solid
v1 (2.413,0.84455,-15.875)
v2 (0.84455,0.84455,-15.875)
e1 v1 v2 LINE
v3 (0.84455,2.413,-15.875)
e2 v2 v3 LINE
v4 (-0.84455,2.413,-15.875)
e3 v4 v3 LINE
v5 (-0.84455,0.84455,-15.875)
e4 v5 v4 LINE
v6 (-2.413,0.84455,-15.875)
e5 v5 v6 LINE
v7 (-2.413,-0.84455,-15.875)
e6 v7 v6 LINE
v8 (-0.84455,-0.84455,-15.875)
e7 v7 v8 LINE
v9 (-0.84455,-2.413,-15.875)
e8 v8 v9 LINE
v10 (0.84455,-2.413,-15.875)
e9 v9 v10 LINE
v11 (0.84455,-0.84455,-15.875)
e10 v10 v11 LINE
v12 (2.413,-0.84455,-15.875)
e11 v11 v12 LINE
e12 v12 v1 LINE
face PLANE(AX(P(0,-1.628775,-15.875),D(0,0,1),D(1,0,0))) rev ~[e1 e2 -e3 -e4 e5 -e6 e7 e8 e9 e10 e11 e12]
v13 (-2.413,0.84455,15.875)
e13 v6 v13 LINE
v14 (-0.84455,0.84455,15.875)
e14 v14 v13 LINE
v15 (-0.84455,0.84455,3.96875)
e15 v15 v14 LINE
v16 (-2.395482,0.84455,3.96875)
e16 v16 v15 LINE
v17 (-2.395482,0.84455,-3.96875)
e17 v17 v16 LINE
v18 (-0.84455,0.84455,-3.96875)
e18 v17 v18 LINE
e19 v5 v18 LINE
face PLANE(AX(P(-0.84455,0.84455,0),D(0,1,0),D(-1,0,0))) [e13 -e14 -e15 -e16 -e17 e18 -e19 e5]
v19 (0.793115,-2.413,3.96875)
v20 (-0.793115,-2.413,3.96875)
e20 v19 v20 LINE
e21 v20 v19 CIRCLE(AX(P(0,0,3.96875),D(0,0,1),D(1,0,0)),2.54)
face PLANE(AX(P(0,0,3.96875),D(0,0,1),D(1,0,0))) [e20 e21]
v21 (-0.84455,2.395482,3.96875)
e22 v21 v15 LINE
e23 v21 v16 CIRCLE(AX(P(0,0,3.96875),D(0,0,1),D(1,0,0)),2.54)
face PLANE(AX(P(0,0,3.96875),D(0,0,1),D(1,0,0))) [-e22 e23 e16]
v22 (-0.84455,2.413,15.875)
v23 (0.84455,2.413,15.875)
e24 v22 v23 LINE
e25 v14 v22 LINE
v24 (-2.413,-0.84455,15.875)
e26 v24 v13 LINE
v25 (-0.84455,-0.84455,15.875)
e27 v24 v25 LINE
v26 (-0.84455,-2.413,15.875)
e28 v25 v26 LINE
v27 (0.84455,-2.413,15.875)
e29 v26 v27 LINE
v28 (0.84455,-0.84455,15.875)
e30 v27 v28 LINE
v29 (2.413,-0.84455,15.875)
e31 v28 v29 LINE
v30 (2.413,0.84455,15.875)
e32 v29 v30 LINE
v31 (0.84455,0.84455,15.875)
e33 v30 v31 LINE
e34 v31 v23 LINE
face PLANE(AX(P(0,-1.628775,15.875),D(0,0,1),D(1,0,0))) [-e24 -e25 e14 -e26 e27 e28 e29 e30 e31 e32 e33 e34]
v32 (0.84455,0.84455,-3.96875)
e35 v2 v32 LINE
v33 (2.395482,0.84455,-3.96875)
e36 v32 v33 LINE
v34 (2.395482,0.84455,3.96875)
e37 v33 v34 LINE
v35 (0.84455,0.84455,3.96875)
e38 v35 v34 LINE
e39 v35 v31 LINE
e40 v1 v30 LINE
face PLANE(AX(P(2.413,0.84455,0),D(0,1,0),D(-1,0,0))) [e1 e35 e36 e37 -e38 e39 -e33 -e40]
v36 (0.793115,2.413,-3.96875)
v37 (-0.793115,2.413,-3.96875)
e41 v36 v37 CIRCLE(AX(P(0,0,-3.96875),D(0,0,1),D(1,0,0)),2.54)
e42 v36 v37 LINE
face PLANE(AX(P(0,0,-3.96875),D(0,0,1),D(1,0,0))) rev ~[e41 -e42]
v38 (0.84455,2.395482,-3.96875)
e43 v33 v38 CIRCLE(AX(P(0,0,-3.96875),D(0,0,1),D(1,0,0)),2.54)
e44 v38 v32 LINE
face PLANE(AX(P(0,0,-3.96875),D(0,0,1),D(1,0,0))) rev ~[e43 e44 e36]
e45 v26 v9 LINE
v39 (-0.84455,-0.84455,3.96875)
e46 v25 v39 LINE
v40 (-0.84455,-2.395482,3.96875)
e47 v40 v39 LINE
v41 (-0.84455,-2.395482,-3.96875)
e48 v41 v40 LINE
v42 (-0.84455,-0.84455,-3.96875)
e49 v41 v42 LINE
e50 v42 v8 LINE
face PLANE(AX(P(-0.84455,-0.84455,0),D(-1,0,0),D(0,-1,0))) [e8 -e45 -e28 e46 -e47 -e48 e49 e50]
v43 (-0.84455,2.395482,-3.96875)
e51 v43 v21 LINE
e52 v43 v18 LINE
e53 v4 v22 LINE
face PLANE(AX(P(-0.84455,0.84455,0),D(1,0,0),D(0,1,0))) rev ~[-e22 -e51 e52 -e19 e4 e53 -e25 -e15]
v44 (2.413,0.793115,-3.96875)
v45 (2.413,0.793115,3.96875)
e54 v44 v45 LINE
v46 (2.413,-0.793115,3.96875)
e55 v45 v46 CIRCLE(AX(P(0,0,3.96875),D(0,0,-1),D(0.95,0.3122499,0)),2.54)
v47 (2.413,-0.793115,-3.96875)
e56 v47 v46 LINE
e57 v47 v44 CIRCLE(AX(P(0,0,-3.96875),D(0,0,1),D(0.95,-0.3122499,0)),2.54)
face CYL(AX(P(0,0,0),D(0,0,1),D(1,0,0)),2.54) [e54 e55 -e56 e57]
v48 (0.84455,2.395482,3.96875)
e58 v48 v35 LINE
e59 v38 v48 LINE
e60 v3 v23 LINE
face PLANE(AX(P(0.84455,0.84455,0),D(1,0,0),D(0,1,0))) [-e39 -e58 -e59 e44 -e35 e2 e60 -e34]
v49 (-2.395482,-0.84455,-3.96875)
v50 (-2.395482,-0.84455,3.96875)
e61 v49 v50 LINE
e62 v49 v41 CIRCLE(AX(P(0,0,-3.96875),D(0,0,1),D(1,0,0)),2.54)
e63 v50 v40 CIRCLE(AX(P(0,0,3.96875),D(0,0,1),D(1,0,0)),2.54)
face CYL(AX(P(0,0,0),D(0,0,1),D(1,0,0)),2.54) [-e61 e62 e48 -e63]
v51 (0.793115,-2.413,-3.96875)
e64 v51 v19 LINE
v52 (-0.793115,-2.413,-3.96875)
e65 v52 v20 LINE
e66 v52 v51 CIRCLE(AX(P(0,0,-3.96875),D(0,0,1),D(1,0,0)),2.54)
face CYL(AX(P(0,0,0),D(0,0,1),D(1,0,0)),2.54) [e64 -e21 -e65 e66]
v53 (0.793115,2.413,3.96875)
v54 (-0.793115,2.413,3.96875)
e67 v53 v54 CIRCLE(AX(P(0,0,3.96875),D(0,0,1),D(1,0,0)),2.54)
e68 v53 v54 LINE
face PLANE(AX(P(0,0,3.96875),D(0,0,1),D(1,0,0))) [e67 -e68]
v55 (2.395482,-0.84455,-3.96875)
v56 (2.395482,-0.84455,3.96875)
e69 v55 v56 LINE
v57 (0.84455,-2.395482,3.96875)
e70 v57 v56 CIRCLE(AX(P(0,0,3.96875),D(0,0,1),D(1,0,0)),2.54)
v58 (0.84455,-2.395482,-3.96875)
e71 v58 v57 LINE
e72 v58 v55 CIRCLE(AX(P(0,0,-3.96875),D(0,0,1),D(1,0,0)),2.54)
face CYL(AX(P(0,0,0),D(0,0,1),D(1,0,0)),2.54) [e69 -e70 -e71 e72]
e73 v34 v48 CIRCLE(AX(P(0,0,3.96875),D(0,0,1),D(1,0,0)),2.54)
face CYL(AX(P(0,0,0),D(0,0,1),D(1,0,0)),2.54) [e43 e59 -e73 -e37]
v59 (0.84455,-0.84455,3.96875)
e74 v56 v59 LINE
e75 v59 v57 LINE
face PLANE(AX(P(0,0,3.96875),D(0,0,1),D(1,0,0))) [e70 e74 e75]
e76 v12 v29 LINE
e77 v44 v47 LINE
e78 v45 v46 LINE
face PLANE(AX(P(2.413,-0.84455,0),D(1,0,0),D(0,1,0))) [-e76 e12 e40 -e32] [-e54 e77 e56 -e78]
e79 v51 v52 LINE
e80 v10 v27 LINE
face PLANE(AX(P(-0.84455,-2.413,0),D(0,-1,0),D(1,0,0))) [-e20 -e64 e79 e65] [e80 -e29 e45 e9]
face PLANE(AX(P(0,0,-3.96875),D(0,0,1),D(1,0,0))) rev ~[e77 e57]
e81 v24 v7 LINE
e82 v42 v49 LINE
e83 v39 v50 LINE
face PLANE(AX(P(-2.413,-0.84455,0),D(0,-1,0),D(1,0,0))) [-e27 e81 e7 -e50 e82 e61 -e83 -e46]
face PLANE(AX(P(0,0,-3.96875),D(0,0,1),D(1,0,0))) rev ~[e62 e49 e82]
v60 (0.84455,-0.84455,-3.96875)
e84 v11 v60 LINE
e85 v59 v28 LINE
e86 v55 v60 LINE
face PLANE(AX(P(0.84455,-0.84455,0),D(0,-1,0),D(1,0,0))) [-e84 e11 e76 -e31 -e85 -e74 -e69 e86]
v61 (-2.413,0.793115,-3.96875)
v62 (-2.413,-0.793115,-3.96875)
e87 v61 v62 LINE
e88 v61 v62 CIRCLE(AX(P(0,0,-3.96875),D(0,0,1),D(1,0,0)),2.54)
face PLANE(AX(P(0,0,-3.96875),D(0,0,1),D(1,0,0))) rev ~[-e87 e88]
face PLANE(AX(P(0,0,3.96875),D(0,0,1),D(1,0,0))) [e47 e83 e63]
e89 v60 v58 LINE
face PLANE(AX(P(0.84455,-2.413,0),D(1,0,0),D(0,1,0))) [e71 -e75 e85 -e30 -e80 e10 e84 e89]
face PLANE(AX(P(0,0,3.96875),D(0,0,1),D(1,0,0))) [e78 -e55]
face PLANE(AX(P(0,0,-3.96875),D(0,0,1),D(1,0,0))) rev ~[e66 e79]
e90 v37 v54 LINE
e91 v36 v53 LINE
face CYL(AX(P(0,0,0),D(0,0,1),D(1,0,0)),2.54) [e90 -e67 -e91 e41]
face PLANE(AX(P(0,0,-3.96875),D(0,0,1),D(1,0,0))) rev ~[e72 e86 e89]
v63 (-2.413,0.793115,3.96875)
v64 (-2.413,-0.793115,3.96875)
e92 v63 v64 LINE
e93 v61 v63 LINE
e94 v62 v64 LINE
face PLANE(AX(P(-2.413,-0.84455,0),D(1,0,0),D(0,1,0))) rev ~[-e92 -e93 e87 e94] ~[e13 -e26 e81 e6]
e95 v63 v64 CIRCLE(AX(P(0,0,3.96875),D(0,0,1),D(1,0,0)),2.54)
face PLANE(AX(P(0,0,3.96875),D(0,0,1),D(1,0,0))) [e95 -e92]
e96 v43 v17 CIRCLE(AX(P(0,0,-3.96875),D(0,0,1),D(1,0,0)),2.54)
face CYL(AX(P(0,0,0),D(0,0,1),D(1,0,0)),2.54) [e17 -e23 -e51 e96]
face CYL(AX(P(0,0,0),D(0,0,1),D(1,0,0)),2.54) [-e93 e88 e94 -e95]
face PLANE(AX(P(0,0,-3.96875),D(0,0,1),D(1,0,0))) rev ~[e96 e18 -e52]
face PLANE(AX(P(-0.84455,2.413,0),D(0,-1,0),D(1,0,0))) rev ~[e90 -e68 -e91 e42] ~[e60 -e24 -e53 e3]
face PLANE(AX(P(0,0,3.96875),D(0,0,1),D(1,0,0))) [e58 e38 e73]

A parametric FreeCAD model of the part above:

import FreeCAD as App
import Part
import Sketcher
from FreeCAD import Vector
Q = App.Units.Quantity


def add_polygon(sketch, points):
    """Adds a closed chain of lines whose ends are joined by coincident constraints."""
    first, n = sketch.GeometryCount, len(points)
    for a, b in zip(points, points[1:] + points[:1]):
        sketch.addGeometry(Part.LineSegment(App.Vector(*a, 0), App.Vector(*b, 0)), False)
    for i in range(n):
        sketch.addConstraint(Sketcher.Constraint("Coincident", first + i, 2, first + (i + 1) % n, 1))

doc = App.newDocument("Part")
body = doc.addObject("PartDesign::Body", "Body")

# Sketch on XY plane
sketch1 = body.newObject("Sketcher::SketchObject", "Sketch")
sketch1.AttachmentSupport = (doc.getObject("XY_Plane"), [""])
sketch1.MapMode = "FlatFace"
add_polygon(sketch1, [(-0.8, -2.4), (0.8, -2.4), (0.8, -0.8), (2.4, -0.8), (2.4, 0.8), (0.8, 0.8), (0.8, 2.4), (-0.8, 2.4), (-0.8, 0.8), (-2.4, 0.8), (-2.4, -0.8), (-0.8, -0.8)])  # lines 0-11
sketch1.addConstraint([
    Sketcher.Constraint("Horizontal", 0),
    Sketcher.Constraint("Vertical", 1),
    Sketcher.Constraint("Horizontal", 2),
    Sketcher.Constraint("Vertical", 3),
    Sketcher.Constraint("Horizontal", 4),
    Sketcher.Constraint("Vertical", 5),
    Sketcher.Constraint("Horizontal", 6),
    Sketcher.Constraint("Vertical", 7),
    Sketcher.Constraint("Horizontal", 8),
    Sketcher.Constraint("Vertical", 9),
    Sketcher.Constraint("Horizontal", 10),
    Sketcher.Constraint("Vertical", 11),
    Sketcher.Constraint("Symmetric", 0, 2, 6, 2, -1, 1),
    Sketcher.Constraint("Symmetric", 2, 2, 8, 2, -1, 1),
    Sketcher.Constraint("Symmetric", 4, 2, 10, 2, -1, 1),
    Sketcher.Constraint("Symmetric", 4, 2, 7, 2, -2),
    Sketcher.Constraint("Equal", 10, 1),
    Sketcher.Constraint("Equal", 6, 3),
    Sketcher.Constraint("DistanceY", 0, 2, 5, 2, Q("0.19 in")),
    Sketcher.Constraint("DistanceX", 0, 1, 0, 2, Q("0.0665 in")),
])
pad1 = body.newObject("PartDesign::Pad", "Pad")
pad1.Profile = sketch1
pad1.Length = Q("1.25 in")
pad1.Midplane = True

# Sketch on XY plane
sketch2 = body.newObject("Sketcher::SketchObject", "Sketch001")
sketch2.AttachmentSupport = (doc.getObject("XY_Plane"), [""])
sketch2.MapMode = "FlatFace"
sketch2.addGeometry(Part.Circle(Vector(0, 0, 0), Vector(0, 0, 1), 2.5), False)
sketch2.addConstraint([
    Sketcher.Constraint("Coincident", 0, 3, -1, 1),
    Sketcher.Constraint("Diameter", 0, Q("0.2 in")),
])
pad2 = body.newObject("PartDesign::Pad", "Pad001")
pad2.Profile = sketch2
pad2.Length = Q("0.3125 in")
pad2.Midplane = True

doc.recompute()
